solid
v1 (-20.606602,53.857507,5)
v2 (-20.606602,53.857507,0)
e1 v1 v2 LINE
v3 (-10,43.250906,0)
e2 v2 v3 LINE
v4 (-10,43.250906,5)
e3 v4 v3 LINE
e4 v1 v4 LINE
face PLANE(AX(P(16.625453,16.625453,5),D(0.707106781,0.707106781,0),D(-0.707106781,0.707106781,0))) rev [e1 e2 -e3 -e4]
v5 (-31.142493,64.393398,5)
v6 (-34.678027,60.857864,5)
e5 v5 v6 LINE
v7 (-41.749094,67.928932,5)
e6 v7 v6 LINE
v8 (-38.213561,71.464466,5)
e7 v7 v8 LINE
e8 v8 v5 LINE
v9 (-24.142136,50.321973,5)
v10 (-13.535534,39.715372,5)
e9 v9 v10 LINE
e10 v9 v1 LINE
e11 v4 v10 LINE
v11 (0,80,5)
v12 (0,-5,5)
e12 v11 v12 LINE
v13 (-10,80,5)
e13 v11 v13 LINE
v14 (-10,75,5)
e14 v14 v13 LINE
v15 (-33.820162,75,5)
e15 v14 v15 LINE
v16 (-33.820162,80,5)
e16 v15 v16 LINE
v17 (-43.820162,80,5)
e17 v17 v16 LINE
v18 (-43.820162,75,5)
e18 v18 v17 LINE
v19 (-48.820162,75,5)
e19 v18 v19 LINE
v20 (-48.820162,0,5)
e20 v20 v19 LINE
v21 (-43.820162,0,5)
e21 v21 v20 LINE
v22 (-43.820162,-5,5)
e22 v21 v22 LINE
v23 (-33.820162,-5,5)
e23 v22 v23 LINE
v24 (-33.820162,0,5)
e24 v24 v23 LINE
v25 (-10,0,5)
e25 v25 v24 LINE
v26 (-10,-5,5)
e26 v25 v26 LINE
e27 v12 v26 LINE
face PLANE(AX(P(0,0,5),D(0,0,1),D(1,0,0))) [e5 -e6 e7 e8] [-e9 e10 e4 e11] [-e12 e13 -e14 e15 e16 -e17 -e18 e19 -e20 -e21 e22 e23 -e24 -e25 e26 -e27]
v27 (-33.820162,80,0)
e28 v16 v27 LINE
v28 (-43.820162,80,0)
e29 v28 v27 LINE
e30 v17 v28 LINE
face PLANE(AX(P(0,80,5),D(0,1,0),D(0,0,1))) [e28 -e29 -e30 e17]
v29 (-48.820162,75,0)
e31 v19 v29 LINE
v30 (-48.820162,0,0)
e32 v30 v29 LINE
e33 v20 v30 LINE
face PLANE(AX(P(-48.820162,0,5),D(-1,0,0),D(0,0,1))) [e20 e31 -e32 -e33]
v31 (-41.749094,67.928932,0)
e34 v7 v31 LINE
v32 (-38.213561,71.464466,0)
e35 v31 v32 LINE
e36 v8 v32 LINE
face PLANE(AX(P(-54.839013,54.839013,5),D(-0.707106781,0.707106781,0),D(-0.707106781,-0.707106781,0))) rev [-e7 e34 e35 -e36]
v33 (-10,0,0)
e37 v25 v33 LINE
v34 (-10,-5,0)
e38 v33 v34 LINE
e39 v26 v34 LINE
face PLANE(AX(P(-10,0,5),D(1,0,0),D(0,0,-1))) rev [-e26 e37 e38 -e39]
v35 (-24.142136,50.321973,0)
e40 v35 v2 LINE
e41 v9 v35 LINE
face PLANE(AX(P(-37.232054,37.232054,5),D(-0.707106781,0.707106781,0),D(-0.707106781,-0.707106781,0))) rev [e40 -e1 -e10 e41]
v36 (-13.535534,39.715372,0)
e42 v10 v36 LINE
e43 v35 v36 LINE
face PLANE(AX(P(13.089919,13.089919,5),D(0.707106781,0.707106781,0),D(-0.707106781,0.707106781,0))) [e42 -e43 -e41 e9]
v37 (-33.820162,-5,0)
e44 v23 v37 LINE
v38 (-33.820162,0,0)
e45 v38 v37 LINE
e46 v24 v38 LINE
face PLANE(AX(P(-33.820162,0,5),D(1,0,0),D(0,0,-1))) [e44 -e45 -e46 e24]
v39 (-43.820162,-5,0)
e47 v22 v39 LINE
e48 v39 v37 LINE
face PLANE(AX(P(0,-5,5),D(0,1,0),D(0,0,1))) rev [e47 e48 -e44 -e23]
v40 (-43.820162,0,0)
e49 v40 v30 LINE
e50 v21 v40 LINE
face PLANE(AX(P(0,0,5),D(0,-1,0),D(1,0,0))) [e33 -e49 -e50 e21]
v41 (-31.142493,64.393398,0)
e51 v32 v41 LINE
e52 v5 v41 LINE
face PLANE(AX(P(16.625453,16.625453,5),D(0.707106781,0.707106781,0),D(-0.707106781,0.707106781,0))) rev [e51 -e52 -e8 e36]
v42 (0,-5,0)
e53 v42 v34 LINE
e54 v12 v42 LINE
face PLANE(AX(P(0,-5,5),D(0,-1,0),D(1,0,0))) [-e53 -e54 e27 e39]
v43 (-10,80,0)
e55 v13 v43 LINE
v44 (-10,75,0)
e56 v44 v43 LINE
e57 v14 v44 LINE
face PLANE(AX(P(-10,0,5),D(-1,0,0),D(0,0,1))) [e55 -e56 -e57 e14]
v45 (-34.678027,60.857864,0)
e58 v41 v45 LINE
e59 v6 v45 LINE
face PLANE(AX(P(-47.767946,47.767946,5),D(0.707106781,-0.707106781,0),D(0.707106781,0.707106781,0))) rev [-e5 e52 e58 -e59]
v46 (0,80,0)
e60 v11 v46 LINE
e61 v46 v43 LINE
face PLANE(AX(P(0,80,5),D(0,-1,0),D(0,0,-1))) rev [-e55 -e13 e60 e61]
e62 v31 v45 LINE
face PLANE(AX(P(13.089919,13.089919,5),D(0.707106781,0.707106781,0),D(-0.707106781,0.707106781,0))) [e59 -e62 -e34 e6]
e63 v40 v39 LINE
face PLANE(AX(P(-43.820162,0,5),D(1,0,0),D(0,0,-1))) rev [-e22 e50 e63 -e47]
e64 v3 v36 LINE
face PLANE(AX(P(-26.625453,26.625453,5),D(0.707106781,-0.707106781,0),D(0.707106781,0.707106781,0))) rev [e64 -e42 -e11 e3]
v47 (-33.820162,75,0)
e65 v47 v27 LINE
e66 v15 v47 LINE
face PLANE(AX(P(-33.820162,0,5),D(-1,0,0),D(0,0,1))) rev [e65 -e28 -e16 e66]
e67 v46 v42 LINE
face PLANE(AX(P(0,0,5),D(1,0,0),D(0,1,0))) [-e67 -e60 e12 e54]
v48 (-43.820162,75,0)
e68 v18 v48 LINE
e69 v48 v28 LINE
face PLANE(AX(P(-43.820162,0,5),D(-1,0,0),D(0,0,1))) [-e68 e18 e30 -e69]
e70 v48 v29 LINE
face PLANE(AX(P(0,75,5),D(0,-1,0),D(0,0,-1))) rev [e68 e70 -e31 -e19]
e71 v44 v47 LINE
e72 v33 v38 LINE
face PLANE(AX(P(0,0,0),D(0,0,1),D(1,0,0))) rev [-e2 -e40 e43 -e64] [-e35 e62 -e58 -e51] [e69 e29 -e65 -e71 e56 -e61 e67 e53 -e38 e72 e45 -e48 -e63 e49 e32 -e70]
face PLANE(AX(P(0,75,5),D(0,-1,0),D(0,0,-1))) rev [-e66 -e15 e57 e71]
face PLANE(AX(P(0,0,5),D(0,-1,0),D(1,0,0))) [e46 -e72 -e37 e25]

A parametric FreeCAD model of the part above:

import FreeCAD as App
import Part
import Sketcher
from FreeCAD import Vector
Q = App.Units.Quantity


def add_polygon(sketch, points):
    """Adds a closed chain of lines whose ends are joined by coincident constraints."""
    first, n = sketch.GeometryCount, len(points)
    for a, b in zip(points, points[1:] + points[:1]):
        sketch.addGeometry(Part.LineSegment(App.Vector(*a, 0), App.Vector(*b, 0)), False)
    for i in range(n):
        sketch.addConstraint(Sketcher.Constraint("Coincident", first + i, 2, first + (i + 1) % n, 1))

doc = App.newDocument("Part")
body = doc.addObject("PartDesign::Body", "Body")

# Sketch on XY plane
sketch1 = body.newObject("Sketcher::SketchObject", "Sketch")
sketch1.AttachmentSupport = (doc.getObject("XY_Plane"), [""])
sketch1.MapMode = "FlatFace"
add_polygon(sketch1, [(-49, 75), (-49, 0), (-44, 0), (-44, -5), (-34, -5), (-34, 0), (-10, 0), (-10, -5), (0, -5), (0, 80), (-10, 80), (-10, 75), (-34, 75), (-34, 80), (-44, 80), (-44, 75)])  # lines 0-15
add_polygon(sketch1, [(-14, 40), (-24, 50), (-21, 54), (-10, 43)])  # lines 16-19
add_polygon(sketch1, [(-35, 61), (-42, 68), (-38, 71), (-31, 64)])  # lines 20-23
sketch1.addConstraint([
    Sketcher.Constraint("Vertical", 0),
    Sketcher.Constraint("Horizontal", 1),
    Sketcher.Constraint("Vertical", 2),
    Sketcher.Constraint("Horizontal", 3),
    Sketcher.Constraint("Vertical", 4),
    Sketcher.Constraint("Horizontal", 5),
    Sketcher.Constraint("Vertical", 6),
    Sketcher.Constraint("Horizontal", 7),
    Sketcher.Constraint("Vertical", 8),
    Sketcher.Constraint("Horizontal", 9),
    Sketcher.Constraint("Vertical", 10),
    Sketcher.Constraint("Horizontal", 11),
    Sketcher.Constraint("Vertical", 12),
    Sketcher.Constraint("Horizontal", 13),
    Sketcher.Constraint("Vertical", 14),
    Sketcher.Constraint("Horizontal", 15),
    Sketcher.Constraint("PointOnObject", 0, 2, -1),
    Sketcher.Constraint("PointOnObject", 4, 2, -1),
    Sketcher.Constraint("PointOnObject", 7, 2, -2),
    Sketcher.Constraint("Perpendicular", 16, 17),
    Sketcher.Constraint("Perpendicular", 17, 18),
    Sketcher.Constraint("Perpendicular", 18, 19),
    Sketcher.Constraint("Perpendicular", 19, 20),
    Sketcher.Constraint("Perpendicular", 20, 21),
    Sketcher.Constraint("Perpendicular", 21, 22),
    Sketcher.Constraint("Perpendicular", 22, 23),
    Sketcher.Constraint("Horizontal", 3, 2, 6, 2),
    Sketcher.Constraint("Horizontal", 9, 2, 12, 2),
    Sketcher.Constraint("Horizontal", 11, 2, 14, 2),
    Sketcher.Constraint("Vertical", 6, 2, 9, 2),
    Sketcher.Constraint("Vertical", 4, 2, 11, 2),
    Sketcher.Constraint("Vertical", 2, 2, 13, 2),
    Sketcher.Constraint("Vertical", 10, 2, 18, 2),
    Sketcher.Constraint("Equal", 3, 7),
    Sketcher.Constraint("Equal", 15, 2),
    Sketcher.Constraint("Equal", 6, 10),
    Sketcher.Constraint("Equal", 19, 21),
    Sketcher.Constraint("DistanceX", 1, 1, 1, 2, 5.0),
    Sketcher.Constraint("DistanceX", 3, 1, 3, 2, 10.0),
    Sketcher.Constraint("DistanceY", 0, 2, 0, 1, 75.0),
    Sketcher.Constraint("Angle", 16, Q("135 deg")),
    Sketcher.Constraint("Distance", 16, 15.0),
    Sketcher.Constraint("Distance", 17, 5.0),
    Sketcher.Constraint("Distance", 20, 10.0),
    Sketcher.Constraint("DistanceY", -1, 1, 22, 2, 64.393398),
    Sketcher.Constraint("DistanceX", 21, 2, 11, 2, 4.393398),
    Sketcher.Constraint("DistanceX", 5, 1, 5, 2, 23.820162),
    Sketcher.Constraint("DistanceY", -1, 1, 19, 2, 39.715372),
])
pad1 = body.newObject("PartDesign::Pad", "Pad")
pad1.Profile = sketch1
pad1.Length = 5

doc.recompute()
